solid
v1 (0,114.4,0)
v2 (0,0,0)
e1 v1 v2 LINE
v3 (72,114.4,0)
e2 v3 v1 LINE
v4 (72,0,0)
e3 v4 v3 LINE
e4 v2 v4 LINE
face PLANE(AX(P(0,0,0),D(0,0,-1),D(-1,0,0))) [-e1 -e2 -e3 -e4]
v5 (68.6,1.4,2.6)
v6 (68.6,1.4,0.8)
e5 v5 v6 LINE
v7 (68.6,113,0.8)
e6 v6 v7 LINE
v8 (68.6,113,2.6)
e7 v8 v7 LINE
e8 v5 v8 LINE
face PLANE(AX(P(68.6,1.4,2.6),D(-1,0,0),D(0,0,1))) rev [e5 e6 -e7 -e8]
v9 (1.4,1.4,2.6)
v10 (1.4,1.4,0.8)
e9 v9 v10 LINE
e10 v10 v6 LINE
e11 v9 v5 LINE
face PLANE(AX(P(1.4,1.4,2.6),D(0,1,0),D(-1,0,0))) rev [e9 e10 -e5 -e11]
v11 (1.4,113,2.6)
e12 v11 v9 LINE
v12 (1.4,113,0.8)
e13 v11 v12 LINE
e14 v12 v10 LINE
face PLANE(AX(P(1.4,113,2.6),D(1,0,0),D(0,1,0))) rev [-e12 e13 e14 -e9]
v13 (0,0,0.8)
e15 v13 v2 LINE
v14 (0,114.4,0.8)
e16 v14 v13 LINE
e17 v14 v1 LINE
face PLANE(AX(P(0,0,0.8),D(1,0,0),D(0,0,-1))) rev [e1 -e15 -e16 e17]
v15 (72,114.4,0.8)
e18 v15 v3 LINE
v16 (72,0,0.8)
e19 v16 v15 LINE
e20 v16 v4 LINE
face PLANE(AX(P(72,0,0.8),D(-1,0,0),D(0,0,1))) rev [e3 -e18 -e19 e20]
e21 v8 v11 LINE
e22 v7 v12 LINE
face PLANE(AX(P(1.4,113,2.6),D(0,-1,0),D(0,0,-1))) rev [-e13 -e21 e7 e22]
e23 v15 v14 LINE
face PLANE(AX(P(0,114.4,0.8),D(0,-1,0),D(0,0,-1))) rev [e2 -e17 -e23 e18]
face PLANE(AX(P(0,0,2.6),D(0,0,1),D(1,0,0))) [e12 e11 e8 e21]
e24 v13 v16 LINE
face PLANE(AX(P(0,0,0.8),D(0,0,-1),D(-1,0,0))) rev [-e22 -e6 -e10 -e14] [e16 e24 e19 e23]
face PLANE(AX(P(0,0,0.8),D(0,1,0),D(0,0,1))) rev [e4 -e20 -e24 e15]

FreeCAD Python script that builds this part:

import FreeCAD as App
import Part
import Sketcher
Q = App.Units.Quantity


def add_polygon(sketch, points):
    """Adds a closed chain of lines whose ends are joined by coincident constraints."""
    first, n = sketch.GeometryCount, len(points)
    for a, b in zip(points, points[1:] + points[:1]):
        sketch.addGeometry(Part.LineSegment(App.Vector(*a, 0), App.Vector(*b, 0)), False)
    for i in range(n):
        sketch.addConstraint(Sketcher.Constraint("Coincident", first + i, 2, first + (i + 1) % n, 1))

doc = App.newDocument("Part")
body = doc.addObject("PartDesign::Body", "Body")

sketch1 = body.newObject("Sketcher::SketchObject", "Sketch")
sketch1.AttachmentSupport = (doc.getObject("XY_Plane"), [""])
sketch1.MapMode = "FlatFace"
add_polygon(sketch1, [(0, 114), (0, 0), (72, 0), (72, 114)])
sketch1.addConstraint(Sketcher.Constraint("Vertical", 0))
sketch1.addConstraint(Sketcher.Constraint("Horizontal", 1))
sketch1.addConstraint(Sketcher.Constraint("Vertical", 2))
sketch1.addConstraint(Sketcher.Constraint("Horizontal", 3))
sketch1.addConstraint(Sketcher.Constraint("Coincident", 0, 2, -1, 1))
sketch1.addConstraint(Sketcher.Constraint("DistanceX", 1, 1, 1, 2, Q("72 mm")))
sketch1.addConstraint(Sketcher.Constraint("DistanceY", 0, 2, 0, 1, Q("114.4 mm")))
pad1 = body.newObject("PartDesign::Pad", "Pad")
pad1.Profile = sketch1
pad1.Length = 0.8

sketch2 = body.newObject("Sketcher::SketchObject", "Sketch001")
sketch2.AttachmentSupport = (doc.getObject("XY_Plane"), [""])
sketch2.MapMode = "FlatFace"
sketch2.AttachmentOffset = App.Placement(App.Vector(0, 0, 0.8), App.Rotation())
add_polygon(sketch2, [(1, 113), (1, 1), (69, 1), (69, 113)])
sketch2.addConstraint(Sketcher.Constraint("Vertical", 0))
sketch2.addConstraint(Sketcher.Constraint("Horizontal", 1))
sketch2.addConstraint(Sketcher.Constraint("Vertical", 2))
sketch2.addConstraint(Sketcher.Constraint("Horizontal", 3))
sketch2.addConstraint(Sketcher.Constraint("DistanceX", 1, 1, 1, 2, Q("67.2 mm")))
sketch2.addConstraint(Sketcher.Constraint("DistanceY", 0, 2, 0, 1, Q("111.6 mm")))
sketch2.addConstraint(Sketcher.Constraint("DistanceY", -1, 1, 2, 2, Q("113 mm")))
sketch2.addConstraint(Sketcher.Constraint("DistanceX", -1, 1, 0, 2, Q("1.4 mm")))
pad2 = body.newObject("PartDesign::Pad", "Pad001")
pad2.Profile = sketch2
pad2.Length = 1.8

doc.recompute()
